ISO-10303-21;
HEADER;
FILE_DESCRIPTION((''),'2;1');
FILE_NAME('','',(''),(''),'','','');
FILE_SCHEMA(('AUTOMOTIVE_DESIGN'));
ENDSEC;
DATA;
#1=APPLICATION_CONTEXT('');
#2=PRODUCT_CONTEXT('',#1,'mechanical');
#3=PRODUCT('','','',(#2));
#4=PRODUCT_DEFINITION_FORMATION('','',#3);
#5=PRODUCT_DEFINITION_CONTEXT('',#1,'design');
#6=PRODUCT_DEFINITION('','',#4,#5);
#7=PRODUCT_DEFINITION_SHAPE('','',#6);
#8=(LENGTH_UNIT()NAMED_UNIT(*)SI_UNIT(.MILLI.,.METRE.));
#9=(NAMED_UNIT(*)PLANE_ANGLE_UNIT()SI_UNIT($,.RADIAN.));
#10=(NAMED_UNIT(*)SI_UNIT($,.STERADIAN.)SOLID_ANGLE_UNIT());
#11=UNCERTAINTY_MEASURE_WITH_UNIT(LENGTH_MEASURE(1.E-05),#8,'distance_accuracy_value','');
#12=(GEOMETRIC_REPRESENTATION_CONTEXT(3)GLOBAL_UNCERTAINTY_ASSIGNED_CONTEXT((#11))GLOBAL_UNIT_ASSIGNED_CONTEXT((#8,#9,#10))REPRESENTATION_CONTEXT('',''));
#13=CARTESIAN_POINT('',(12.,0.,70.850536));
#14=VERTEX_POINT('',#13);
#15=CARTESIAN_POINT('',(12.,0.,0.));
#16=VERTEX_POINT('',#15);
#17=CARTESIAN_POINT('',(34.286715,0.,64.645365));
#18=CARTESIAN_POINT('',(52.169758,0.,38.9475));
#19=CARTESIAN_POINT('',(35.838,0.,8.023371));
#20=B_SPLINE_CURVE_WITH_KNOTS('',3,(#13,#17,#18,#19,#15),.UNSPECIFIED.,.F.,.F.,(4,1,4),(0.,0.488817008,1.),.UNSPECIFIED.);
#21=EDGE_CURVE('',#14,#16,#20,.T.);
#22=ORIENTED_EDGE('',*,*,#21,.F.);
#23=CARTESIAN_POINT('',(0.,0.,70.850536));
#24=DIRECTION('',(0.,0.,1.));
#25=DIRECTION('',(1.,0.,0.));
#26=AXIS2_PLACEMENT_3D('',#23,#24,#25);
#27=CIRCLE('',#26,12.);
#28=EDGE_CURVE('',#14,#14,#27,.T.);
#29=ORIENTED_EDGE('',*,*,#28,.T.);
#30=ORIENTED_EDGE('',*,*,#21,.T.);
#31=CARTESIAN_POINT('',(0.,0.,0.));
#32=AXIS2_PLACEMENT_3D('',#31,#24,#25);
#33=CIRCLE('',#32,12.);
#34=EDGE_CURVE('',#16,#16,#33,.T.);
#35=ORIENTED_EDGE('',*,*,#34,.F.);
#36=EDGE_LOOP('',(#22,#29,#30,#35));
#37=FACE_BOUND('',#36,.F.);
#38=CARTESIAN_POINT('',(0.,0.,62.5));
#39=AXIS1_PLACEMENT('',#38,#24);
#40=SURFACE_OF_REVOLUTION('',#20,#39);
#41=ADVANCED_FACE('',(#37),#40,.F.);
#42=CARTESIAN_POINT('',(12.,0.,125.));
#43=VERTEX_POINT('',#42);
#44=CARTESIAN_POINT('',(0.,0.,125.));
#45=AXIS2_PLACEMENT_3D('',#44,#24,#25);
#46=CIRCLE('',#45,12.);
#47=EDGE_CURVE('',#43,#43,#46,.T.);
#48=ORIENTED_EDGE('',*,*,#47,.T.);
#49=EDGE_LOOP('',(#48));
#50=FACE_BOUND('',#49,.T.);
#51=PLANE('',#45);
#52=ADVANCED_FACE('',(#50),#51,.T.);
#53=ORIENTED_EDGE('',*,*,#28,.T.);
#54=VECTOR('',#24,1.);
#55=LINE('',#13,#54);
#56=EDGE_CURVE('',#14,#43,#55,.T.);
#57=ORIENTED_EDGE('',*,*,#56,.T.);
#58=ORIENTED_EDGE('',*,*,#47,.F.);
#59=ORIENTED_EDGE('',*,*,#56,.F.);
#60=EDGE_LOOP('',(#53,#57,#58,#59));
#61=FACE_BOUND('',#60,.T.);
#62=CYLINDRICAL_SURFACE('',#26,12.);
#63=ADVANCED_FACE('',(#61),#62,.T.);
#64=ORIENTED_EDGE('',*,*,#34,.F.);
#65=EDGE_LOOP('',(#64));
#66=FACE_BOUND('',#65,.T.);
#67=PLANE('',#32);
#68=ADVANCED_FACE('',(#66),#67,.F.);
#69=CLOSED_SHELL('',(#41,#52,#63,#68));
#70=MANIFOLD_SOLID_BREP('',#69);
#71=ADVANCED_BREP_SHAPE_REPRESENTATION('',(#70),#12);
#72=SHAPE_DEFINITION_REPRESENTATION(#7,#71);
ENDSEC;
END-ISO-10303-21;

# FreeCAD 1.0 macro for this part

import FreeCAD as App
import Part
import Sketcher
from FreeCAD import Vector

doc = App.newDocument("Part")
body = doc.addObject("PartDesign::Body", "Body")

sketch1 = doc.addObject("Sketcher::SketchObject", "Sketch")
body.addObject(sketch1)
sketch1.AttachmentSupport = (doc.XZ_Plane, [""])
sketch1.MapMode = "FlatFace"
sketch1.addGeometry([
    Part.LineSegment(Vector(0, 125, 0), Vector(0, 0, 0)),
    Part.LineSegment(Vector(0, 0, 0), Vector(12, 0, 0)),
    Part.BSplineCurve([Vector(12, 70.850536, 0), Vector(34.286715, 64.645365, 0), Vector(52.169758, 38.9475, 0), Vector(35.838, 8.023371, 0), Vector(12, 0, 0)], [4, 1, 4], [0, 0.488817008, 1], False, 3, [1, 1, 1, 1, 1], False),
    Part.LineSegment(Vector(12, 70.850536, 0), Vector(12, 125, 0)),
    Part.LineSegment(Vector(12, 125, 0), Vector(0, 125, 0)),
], False)
sketch1.addConstraint([
    Sketcher.Constraint("Block", 2),
    Sketcher.Constraint("Coincident", 0, 2, 1, 1),
    Sketcher.Constraint("Coincident", 1, 2, 2, 2),
    Sketcher.Constraint("Coincident", 2, 1, 3, 1),
    Sketcher.Constraint("Coincident", 3, 2, 4, 1),
    Sketcher.Constraint("Coincident", 4, 2, 0, 1),
    Sketcher.Constraint("Vertical", 0),
    Sketcher.Constraint("Horizontal", 1),
    Sketcher.Constraint("Vertical", 3),
    Sketcher.Constraint("Horizontal", 4),
    Sketcher.Constraint("PointOnObject", 4, 2, -2),
    Sketcher.Constraint("DistanceY", 0, 2, 0, 1, 125.0),
])
revolution = doc.addObject("PartDesign::Revolution", "Revolution")
body.addObject(revolution)
revolution.Profile = sketch1
revolution.ReferenceAxis = (sketch1, ["V_Axis"])
revolution.Angle = 360

doc.recompute()
